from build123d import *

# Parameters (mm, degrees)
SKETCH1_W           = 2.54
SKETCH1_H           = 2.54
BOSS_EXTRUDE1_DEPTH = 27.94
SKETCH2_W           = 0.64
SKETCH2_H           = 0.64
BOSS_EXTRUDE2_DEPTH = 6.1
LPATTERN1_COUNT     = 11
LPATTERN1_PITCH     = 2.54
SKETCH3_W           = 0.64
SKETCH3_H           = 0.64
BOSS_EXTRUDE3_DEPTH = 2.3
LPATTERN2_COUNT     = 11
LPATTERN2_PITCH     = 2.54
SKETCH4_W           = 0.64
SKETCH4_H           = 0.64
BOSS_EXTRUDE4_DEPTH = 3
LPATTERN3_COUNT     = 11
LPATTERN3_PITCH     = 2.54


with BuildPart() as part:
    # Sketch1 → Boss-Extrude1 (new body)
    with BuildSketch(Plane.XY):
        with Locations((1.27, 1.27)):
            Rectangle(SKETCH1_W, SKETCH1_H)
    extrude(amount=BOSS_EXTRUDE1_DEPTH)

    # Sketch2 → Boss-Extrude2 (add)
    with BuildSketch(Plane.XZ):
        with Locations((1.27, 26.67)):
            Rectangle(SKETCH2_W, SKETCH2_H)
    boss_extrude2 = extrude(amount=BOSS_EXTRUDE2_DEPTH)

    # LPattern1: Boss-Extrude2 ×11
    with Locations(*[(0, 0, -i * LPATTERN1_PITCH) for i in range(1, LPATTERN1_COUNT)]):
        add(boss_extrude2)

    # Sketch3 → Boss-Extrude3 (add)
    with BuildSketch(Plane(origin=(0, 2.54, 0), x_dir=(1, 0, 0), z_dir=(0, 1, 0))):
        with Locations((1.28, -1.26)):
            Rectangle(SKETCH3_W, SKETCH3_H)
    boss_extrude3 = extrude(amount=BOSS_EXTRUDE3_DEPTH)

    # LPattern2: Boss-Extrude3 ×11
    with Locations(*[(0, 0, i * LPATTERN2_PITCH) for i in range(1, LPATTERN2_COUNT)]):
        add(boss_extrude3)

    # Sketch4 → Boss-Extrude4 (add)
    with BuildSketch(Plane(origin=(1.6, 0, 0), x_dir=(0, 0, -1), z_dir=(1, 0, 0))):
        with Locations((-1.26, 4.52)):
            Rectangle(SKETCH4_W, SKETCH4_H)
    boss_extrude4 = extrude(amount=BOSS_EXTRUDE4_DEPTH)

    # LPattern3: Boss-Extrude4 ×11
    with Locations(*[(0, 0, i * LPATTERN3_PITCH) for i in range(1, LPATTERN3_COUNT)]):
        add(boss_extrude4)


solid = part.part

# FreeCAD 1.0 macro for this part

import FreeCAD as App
import Part
import Sketcher


def add_polygon(sketch, points):
    """Adds a closed chain of lines whose ends are joined by coincident constraints."""
    first, n = sketch.GeometryCount, len(points)
    for a, b in zip(points, points[1:] + points[:1]):
        sketch.addGeometry(Part.LineSegment(App.Vector(*a, 0), App.Vector(*b, 0)), False)
    for i in range(n):
        sketch.addConstraint(Sketcher.Constraint("Coincident", first + i, 2, first + (i + 1) % n, 1))

doc = App.newDocument("Part")
body = doc.addObject("PartDesign::Body", "Body")

# Sketch on XY plane
sketch1 = body.newObject("Sketcher::SketchObject", "Sketch")
sketch1.AttachmentSupport = (doc.getObject("XY_Plane"), [""])
sketch1.MapMode = "FlatFace"
add_polygon(sketch1, [(0, 2.54), (0, 0), (2.54, 0), (2.54, 2.54)])  # lines 0-3
sketch1.addConstraint(Sketcher.Constraint("Vertical", 0))
sketch1.addConstraint(Sketcher.Constraint("Horizontal", 1))
sketch1.addConstraint(Sketcher.Constraint("Vertical", 2))
sketch1.addConstraint(Sketcher.Constraint("Horizontal", 3))
sketch1.addConstraint(Sketcher.Constraint("Coincident", 0, 2, -1, 1))
sketch1.addConstraint(Sketcher.Constraint("Equal", 3, 0))
sketch1.addConstraint(Sketcher.Constraint("DistanceX", 1, 1, 1, 2, 2.54))
pad1 = body.newObject("PartDesign::Pad", "Pad")
pad1.Profile = sketch1
pad1.Length = 27.94

# Sketch on XZ plane
sketch2 = body.newObject("Sketcher::SketchObject", "Sketch001")
sketch2.AttachmentSupport = (doc.getObject("XZ_Plane"), [""])
sketch2.MapMode = "FlatFace"
add_polygon(sketch2, [(0.95, 26.99), (0.95, 26.35), (1.59, 26.35), (1.59, 26.99)])  # lines 0-3
sketch2.addConstraint(Sketcher.Constraint("Vertical", 0))
sketch2.addConstraint(Sketcher.Constraint("Horizontal", 1))
sketch2.addConstraint(Sketcher.Constraint("Vertical", 2))
sketch2.addConstraint(Sketcher.Constraint("Horizontal", 3))
sketch2.addConstraint(Sketcher.Constraint("Equal", 3, 0))
sketch2.addConstraint(Sketcher.Constraint("DistanceX", 1, 1, 1, 2, 0.64))
sketch2.addConstraint(Sketcher.Constraint("DistanceX", -1, 1, 0, 2, 0.95))
sketch2.addConstraint(Sketcher.Constraint("DistanceY", -1, 1, 0, 2, 26.35))
pad2 = body.newObject("PartDesign::Pad", "Pad001")
pad2.Profile = sketch2
pad2.Length = 6.1
doc.recompute()

linearpattern = body.newObject("PartDesign::LinearPattern", "LinearPattern")
linearpattern.Originals = [pad2]
linearpattern.Direction = (doc.getObject("Z_Axis"), [""])
linearpattern.Mode = "offset"
linearpattern.Offset = 2.54
linearpattern.Occurrences = 11
linearpattern.Reversed = True
body.Tip = linearpattern

# Sketch on XZ plane
sketch3 = body.newObject("Sketcher::SketchObject", "Sketch002")
sketch3.AttachmentSupport = (doc.getObject("XZ_Plane"), [""])
sketch3.MapMode = "FlatFace"
sketch3.AttachmentOffset = App.Placement(App.Vector(0, 0, -2.54), App.Rotation())
add_polygon(sketch3, [(0.96, 0.94), (0.96, 1.58), (1.6, 1.58), (1.6, 0.94)])  # lines 0-3
sketch3.addConstraint(Sketcher.Constraint("Vertical", 0))
sketch3.addConstraint(Sketcher.Constraint("Horizontal", 1))
sketch3.addConstraint(Sketcher.Constraint("Vertical", 2))
sketch3.addConstraint(Sketcher.Constraint("Horizontal", 3))
sketch3.addConstraint(Sketcher.Constraint("Equal", 3, 0))
sketch3.addConstraint(Sketcher.Constraint("DistanceX", 1, 1, 1, 2, 0.64))
sketch3.addConstraint(Sketcher.Constraint("DistanceX", -1, 1, 1, 2, 1.6))
sketch3.addConstraint(Sketcher.Constraint("DistanceY", -1, 1, 0, 2, 1.58))
pad3 = body.newObject("PartDesign::Pad", "Pad002")
pad3.Profile = sketch3
pad3.Length = 2.3
pad3.Reversed = True
doc.recompute()

linearpattern2 = body.newObject("PartDesign::LinearPattern", "LinearPattern001")
linearpattern2.Originals = [pad3]
linearpattern2.Direction = (doc.getObject("Z_Axis"), [""])
linearpattern2.Mode = "offset"
linearpattern2.Offset = 2.54
linearpattern2.Occurrences = 11
body.Tip = linearpattern2

# Sketch on YZ plane
sketch4 = body.newObject("Sketcher::SketchObject", "Sketch003")
sketch4.AttachmentSupport = (doc.getObject("YZ_Plane"), [""])
sketch4.MapMode = "FlatFace"
sketch4.AttachmentOffset = App.Placement(App.Vector(0, 0, 1.6), App.Rotation())
add_polygon(sketch4, [(4.84, 1.58), (4.2, 1.58), (4.2, 0.94), (4.84, 0.94)])  # lines 0-3
sketch4.addConstraint(Sketcher.Constraint("Horizontal", 0))
sketch4.addConstraint(Sketcher.Constraint("Vertical", 1))
sketch4.addConstraint(Sketcher.Constraint("Horizontal", 2))
sketch4.addConstraint(Sketcher.Constraint("Vertical", 3))
sketch4.addConstraint(Sketcher.Constraint("Equal", 2, 1))
sketch4.addConstraint(Sketcher.Constraint("DistanceX", 0, 2, 0, 1, 0.64))
sketch4.addConstraint(Sketcher.Constraint("DistanceX", -1, 1, 0, 2, 4.2))
sketch4.addConstraint(Sketcher.Constraint("DistanceY", -1, 1, 0, 2, 1.58))
pad4 = body.newObject("PartDesign::Pad", "Pad003")
pad4.Profile = sketch4
pad4.Length = 3
doc.recompute()

linearpattern3 = body.newObject("PartDesign::LinearPattern", "LinearPattern002")
linearpattern3.Originals = [pad4]
linearpattern3.Direction = (doc.getObject("Z_Axis"), [""])
linearpattern3.Mode = "offset"
linearpattern3.Offset = 2.54
linearpattern3.Occurrences = 11
body.Tip = linearpattern3

doc.recompute()
